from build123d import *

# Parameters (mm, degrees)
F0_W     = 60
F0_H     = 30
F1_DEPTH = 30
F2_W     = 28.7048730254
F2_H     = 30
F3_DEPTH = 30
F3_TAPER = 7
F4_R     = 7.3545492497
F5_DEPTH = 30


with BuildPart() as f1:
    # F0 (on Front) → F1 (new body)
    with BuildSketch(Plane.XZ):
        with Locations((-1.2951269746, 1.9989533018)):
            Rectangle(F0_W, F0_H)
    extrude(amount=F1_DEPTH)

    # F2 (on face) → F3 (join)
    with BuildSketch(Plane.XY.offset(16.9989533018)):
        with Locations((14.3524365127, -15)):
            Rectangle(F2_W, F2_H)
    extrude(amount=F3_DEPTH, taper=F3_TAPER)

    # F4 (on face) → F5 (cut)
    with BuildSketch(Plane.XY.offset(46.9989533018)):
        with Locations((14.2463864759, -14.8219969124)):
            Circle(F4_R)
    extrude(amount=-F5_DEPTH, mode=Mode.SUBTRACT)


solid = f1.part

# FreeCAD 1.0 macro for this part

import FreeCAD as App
import Part
import Sketcher


def add_polygon(sketch, points):
    """Adds a closed chain of lines whose ends are joined by coincident constraints."""
    first, n = sketch.GeometryCount, len(points)
    for a, b in zip(points, points[1:] + points[:1]):
        sketch.addGeometry(Part.LineSegment(App.Vector(*a, 0), App.Vector(*b, 0)), False)
    for i in range(n):
        sketch.addConstraint(Sketcher.Constraint("Coincident", first + i, 2, first + (i + 1) % n, 1))

doc = App.newDocument("Part")
body = doc.addObject("PartDesign::Body", "Body")

# Sketch on XZ plane
sketch1 = body.newObject("Sketcher::SketchObject", "Sketch")
sketch1.AttachmentSupport = (doc.getObject("XZ_Plane"), [""])
sketch1.MapMode = "FlatFace"
add_polygon(sketch1, [(-31, 17), (-31, -13), (29, -13), (29, 17)])  # lines 0-3
sketch1.addConstraint([
    Sketcher.Constraint("Vertical", 0),
    Sketcher.Constraint("Horizontal", 1),
    Sketcher.Constraint("Vertical", 2),
    Sketcher.Constraint("Horizontal", 3),
    Sketcher.Constraint("DistanceX", 1, 1, 1, 2, 60.0),
    Sketcher.Constraint("DistanceY", 0, 2, 0, 1, 30.0),
    Sketcher.Constraint("DistanceX", 0, 2, -1, 1, 31.295127),
    Sketcher.Constraint("DistanceY", 0, 2, -1, 1, 13.001047),
])
pad1 = body.newObject("PartDesign::Pad", "Pad")
pad1.Profile = sketch1
pad1.Length = 30

# Sketch on XY plane
sketch2 = body.newObject("Sketcher::SketchObject", "Sketch001")
sketch2.AttachmentSupport = (doc.getObject("XY_Plane"), [""])
sketch2.MapMode = "FlatFace"
sketch2.AttachmentOffset = App.Placement(App.Vector(0, 0, 16.998953), App.Rotation())
add_polygon(sketch2, [(0, 0), (0, -30), (29, -30), (29, 0)])  # lines 0-3
sketch2.addConstraint([
    Sketcher.Constraint("Vertical", 0),
    Sketcher.Constraint("Horizontal", 1),
    Sketcher.Constraint("Vertical", 2),
    Sketcher.Constraint("Horizontal", 3),
    Sketcher.Constraint("Coincident", 3, 2, -1, 1),
    Sketcher.Constraint("DistanceY", 0, 2, 0, 1, 30.0),
    Sketcher.Constraint("DistanceX", 1, 1, 1, 2, 28.704873),
])
pad2 = body.newObject("PartDesign::Pad", "Pad001")
pad2.Profile = sketch2
pad2.Length = 30
pad2.TaperAngle = -7

# Sketch on XY plane
sketch3 = body.newObject("Sketcher::SketchObject", "Sketch002")
sketch3.AttachmentSupport = (doc.getObject("XY_Plane"), [""])
sketch3.MapMode = "FlatFace"
sketch3.AttachmentOffset = App.Placement(App.Vector(0, 0, 46.998953), App.Rotation())
sketch3.addGeometry(Part.Circle(App.Vector(14, -15, 0), App.Vector(0, 0, 1), 7), False)
sketch3.addConstraint([
    Sketcher.Constraint("Diameter", 0, 14.709098),
    Sketcher.Constraint("DistanceX", -1, 1, 0, 3, 14.246386),
    Sketcher.Constraint("DistanceY", 0, 3, -1, 1, 14.821997),
])
pocket1 = body.newObject("PartDesign::Pocket", "Pocket")
pocket1.Profile = sketch3
pocket1.Length = 30

doc.recompute()
